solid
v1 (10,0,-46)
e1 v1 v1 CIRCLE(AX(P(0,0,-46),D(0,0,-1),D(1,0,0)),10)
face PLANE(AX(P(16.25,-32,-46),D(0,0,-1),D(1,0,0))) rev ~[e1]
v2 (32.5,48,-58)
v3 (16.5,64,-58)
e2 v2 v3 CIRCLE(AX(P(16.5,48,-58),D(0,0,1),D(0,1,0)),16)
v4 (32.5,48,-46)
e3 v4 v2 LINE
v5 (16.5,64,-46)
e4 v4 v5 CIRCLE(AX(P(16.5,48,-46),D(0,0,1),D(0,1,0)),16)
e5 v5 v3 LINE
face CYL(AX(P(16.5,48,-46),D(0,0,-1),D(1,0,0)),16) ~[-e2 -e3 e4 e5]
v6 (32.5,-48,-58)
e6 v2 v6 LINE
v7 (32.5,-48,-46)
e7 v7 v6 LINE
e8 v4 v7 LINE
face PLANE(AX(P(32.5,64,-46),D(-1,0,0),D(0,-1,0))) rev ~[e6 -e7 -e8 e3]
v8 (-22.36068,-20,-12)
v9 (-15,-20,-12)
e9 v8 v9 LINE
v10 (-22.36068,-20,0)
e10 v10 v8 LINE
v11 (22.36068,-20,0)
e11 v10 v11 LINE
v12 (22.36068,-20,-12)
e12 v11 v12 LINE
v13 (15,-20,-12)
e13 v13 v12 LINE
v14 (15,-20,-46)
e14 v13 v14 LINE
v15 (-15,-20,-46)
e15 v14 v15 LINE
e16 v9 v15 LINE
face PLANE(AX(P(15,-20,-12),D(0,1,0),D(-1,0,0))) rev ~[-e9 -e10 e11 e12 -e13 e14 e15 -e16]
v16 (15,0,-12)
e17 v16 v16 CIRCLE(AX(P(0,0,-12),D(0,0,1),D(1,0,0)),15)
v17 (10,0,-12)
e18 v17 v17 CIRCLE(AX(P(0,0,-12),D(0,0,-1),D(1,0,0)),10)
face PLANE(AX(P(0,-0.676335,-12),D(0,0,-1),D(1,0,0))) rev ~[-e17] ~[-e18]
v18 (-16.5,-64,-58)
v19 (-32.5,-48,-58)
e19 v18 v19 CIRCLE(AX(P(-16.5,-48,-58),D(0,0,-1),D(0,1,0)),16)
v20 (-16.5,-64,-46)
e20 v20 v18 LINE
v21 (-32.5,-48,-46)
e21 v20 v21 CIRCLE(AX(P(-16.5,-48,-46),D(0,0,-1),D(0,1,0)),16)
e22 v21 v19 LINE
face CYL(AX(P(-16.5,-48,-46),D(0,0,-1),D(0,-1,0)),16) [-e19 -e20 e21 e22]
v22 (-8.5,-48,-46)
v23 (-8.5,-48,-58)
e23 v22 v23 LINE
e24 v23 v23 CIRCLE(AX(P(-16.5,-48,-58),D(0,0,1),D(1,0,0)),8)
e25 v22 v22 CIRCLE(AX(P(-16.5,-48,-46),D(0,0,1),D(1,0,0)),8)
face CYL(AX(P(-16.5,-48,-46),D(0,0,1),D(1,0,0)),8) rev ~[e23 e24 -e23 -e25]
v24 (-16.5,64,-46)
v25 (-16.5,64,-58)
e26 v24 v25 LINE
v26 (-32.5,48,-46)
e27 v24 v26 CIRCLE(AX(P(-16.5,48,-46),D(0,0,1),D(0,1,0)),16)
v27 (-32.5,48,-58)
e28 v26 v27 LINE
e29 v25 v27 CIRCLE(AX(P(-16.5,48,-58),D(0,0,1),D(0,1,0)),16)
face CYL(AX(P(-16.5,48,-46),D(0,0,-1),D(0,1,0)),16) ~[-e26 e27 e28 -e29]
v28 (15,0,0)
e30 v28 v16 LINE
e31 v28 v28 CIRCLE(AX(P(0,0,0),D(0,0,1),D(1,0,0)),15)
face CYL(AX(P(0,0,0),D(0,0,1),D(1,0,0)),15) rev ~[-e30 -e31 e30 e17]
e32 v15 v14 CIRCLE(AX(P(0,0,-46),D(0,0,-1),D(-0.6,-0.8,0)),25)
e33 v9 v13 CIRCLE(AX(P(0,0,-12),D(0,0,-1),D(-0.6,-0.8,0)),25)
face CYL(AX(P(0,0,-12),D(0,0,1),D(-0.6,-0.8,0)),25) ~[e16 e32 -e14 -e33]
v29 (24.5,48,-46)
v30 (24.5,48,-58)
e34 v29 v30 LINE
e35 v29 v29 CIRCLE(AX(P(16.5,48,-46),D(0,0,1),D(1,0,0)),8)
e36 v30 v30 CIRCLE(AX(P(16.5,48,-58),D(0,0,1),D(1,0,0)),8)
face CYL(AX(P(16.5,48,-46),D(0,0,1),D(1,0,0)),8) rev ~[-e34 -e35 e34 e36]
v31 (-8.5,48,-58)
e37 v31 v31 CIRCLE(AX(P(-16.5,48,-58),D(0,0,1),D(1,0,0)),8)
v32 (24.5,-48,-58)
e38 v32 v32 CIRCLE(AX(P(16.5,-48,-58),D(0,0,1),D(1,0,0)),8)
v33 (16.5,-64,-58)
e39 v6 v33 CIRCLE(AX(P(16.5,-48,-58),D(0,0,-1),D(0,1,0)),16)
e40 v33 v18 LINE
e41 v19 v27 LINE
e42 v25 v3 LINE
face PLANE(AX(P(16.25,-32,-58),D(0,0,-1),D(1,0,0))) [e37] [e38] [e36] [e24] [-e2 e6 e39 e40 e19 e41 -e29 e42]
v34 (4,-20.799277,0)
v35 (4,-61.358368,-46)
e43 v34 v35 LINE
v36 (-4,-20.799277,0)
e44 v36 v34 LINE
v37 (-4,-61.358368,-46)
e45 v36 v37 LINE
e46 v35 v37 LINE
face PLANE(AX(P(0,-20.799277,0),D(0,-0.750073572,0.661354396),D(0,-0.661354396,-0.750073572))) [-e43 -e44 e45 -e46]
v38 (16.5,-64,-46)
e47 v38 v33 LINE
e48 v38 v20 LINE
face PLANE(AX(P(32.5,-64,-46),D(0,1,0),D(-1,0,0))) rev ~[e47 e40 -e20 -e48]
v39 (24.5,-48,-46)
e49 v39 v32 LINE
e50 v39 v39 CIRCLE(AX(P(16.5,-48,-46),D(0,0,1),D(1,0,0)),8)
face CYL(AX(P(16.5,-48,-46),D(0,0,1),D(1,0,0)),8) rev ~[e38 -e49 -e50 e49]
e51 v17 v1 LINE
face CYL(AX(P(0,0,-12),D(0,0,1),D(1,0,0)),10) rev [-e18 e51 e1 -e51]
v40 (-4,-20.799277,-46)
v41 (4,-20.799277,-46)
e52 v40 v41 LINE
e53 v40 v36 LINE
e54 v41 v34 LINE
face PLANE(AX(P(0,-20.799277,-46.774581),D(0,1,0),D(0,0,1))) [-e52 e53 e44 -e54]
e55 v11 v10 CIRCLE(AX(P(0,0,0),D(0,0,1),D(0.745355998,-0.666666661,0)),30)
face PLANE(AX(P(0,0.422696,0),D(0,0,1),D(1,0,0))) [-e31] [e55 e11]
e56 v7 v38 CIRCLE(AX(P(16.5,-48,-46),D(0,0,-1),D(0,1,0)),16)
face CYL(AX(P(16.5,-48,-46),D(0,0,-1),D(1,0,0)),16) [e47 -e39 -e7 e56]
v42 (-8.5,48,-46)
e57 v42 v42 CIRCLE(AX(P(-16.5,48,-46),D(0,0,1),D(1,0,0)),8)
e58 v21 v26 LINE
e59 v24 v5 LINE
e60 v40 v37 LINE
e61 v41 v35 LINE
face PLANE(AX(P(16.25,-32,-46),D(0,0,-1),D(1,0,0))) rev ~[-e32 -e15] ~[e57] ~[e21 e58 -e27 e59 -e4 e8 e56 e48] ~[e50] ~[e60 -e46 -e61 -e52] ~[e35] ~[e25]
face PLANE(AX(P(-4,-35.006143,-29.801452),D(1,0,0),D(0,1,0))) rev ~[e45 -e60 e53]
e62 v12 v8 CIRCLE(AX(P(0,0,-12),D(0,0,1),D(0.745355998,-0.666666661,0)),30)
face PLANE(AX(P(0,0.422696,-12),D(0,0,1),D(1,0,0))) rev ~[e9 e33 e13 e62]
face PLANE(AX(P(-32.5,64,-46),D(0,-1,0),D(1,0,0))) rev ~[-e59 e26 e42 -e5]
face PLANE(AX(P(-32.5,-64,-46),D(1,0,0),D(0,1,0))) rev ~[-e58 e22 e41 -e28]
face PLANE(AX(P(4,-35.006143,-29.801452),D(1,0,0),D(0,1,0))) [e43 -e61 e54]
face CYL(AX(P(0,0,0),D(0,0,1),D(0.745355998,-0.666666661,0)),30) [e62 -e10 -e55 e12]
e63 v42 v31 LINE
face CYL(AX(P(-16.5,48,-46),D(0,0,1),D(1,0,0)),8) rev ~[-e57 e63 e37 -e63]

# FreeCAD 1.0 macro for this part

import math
import FreeCAD as App
import Part
import Sketcher
Q = App.Units.Quantity


def edges_at(feature, points):
    """Names of the edges that pass closest to the given points."""
    edges = feature.Shape.Edges
    near = lambda p: min(range(len(edges)), key=lambda i: edges[i].distToShape(Part.Vertex(*p))[0])
    return sorted({f"Edge{near(p) + 1}" for p in points})


def add_polygon(sketch, points):
    """Adds a closed chain of lines whose ends are joined by coincident constraints."""
    first, n = sketch.GeometryCount, len(points)
    for a, b in zip(points, points[1:] + points[:1]):
        sketch.addGeometry(Part.LineSegment(App.Vector(*a, 0), App.Vector(*b, 0)), False)
    for i in range(n):
        sketch.addConstraint(Sketcher.Constraint("Coincident", first + i, 2, first + (i + 1) % n, 1))

doc = App.newDocument("Part")
params = doc.addObject("Spreadsheet::Sheet", "Params")
for row, (alias, value) in enumerate([
    ("sketch1_diameter", "30 mm"),
    ("sketch1_radius", "30 mm"),
    ("pad1_length", "12 mm"),
    ("sketch2_diameter", "20 mm"),
    ("sketch2_radius", "25 mm"),
    ("sketch2_width", "30 mm"),
    ("pad2_length", "34 mm"),
    ("sketch3_width", "65 mm"),
    ("sketch3_height", "128 mm"),
    ("pad3_length", "12 mm"),
    ("fillet_radius", "16 mm"),
    ("sketch4_diameter", "16 mm"),
    ("pad4_length", "8 mm"),
], start=1):
    params.set(f"A{row}", alias)
    params.set(f"B{row}", "=" + value)
    params.setAlias(f"B{row}", alias)

body = doc.addObject("PartDesign::Body", "Body")

# Sketch on XY plane
sketch1 = doc.addObject("Sketcher::SketchObject", "Sketch")
body.addObject(sketch1)
sketch1.AttachmentSupport = (doc.XY_Plane, [""])
sketch1.MapMode = "FlatFace"
sketch1.addGeometry(Part.LineSegment(App.Vector(-22, -20, 0), App.Vector(22, -20, 0)), False)
sketch1.addGeometry(Part.ArcOfCircle(Part.Circle(App.Vector(0, 0, 0), App.Vector(0, 0, 1), 30), math.radians(-42), math.radians(222)), False)
sketch1.addGeometry(Part.Circle(App.Vector(0, 0, 0), App.Vector(0, 0, 1), 15), False)
sketch1.addConstraint(Sketcher.Constraint("Coincident", 0, 1, 1, 2))
sketch1.addConstraint(Sketcher.Constraint("Coincident", 1, 1, 0, 2))
sketch1.addConstraint(Sketcher.Constraint("Horizontal", 0))
sketch1.addConstraint(Sketcher.Constraint("Coincident", 1, 3, -1, 1))
sketch1.addConstraint(Sketcher.Constraint("Coincident", 2, 3, -1, 1))
sketch1.addConstraint(Sketcher.Constraint("Diameter", 2, Q("30 mm")))
sketch1.addConstraint(Sketcher.Constraint("Radius", 1, Q("30 mm")))
sketch1.addConstraint(Sketcher.Constraint("DistanceY", 0, 1, -1, 1, Q("20 mm")))
sketch1.setExpression("Constraints[5]", "Params.sketch1_diameter")
sketch1.setExpression("Constraints[6]", "Params.sketch1_radius")
pad1 = doc.addObject("PartDesign::Pad", "Pad")
body.addObject(pad1)
pad1.Profile = sketch1
pad1.setExpression("Length", "Params.pad1_length")
pad1.Reversed = True

# Sketch on XY plane
sketch2 = doc.addObject("Sketcher::SketchObject", "Sketch001")
body.addObject(sketch2)
sketch2.AttachmentSupport = (doc.XY_Plane, [""])
sketch2.MapMode = "FlatFace"
sketch2.AttachmentOffset = App.Placement(App.Vector(0, 0, -12), App.Rotation())
sketch2.addGeometry(Part.LineSegment(App.Vector(15, -20, 0), App.Vector(-15, -20, 0)), False)
sketch2.addGeometry(Part.ArcOfCircle(Part.Circle(App.Vector(0, 0, 0), App.Vector(0, 0, 1), 25), math.radians(-53), math.radians(233)), False)
sketch2.addGeometry(Part.Circle(App.Vector(0, 0, 0), App.Vector(0, 0, 1), 10), False)
sketch2.addConstraint(Sketcher.Constraint("Coincident", 0, 1, 1, 1))
sketch2.addConstraint(Sketcher.Constraint("Coincident", 1, 2, 0, 2))
sketch2.addConstraint(Sketcher.Constraint("Horizontal", 0))
sketch2.addConstraint(Sketcher.Constraint("Coincident", 1, 3, -1, 1))
sketch2.addConstraint(Sketcher.Constraint("Coincident", 2, 3, -1, 1))
sketch2.addConstraint(Sketcher.Constraint("Diameter", 2, Q("20 mm")))
sketch2.addConstraint(Sketcher.Constraint("Radius", 1, Q("25 mm")))
sketch2.addConstraint(Sketcher.Constraint("DistanceX", 0, 2, 0, 1, Q("30 mm")))
sketch2.setExpression("Constraints[5]", "Params.sketch2_diameter")
sketch2.setExpression("Constraints[6]", "Params.sketch2_radius")
sketch2.setExpression("Constraints[7]", "Params.sketch2_width")
pad2 = doc.addObject("PartDesign::Pad", "Pad001")
body.addObject(pad2)
pad2.Profile = sketch2
pad2.setExpression("Length", "Params.pad2_length")
pad2.Reversed = True

# Sketch on XY plane
sketch3 = doc.addObject("Sketcher::SketchObject", "Sketch002")
body.addObject(sketch3)
sketch3.AttachmentSupport = (doc.XY_Plane, [""])
sketch3.MapMode = "FlatFace"
sketch3.AttachmentOffset = App.Placement(App.Vector(0, 0, -46), App.Rotation())
add_polygon(sketch3, [(32, 64), (32, -64), (-32, -64), (-32, 64)])  # lines 0-3
sketch3.addConstraint(Sketcher.Constraint("Vertical", 0))
sketch3.addConstraint(Sketcher.Constraint("Horizontal", 1))
sketch3.addConstraint(Sketcher.Constraint("Vertical", 2))
sketch3.addConstraint(Sketcher.Constraint("Horizontal", 3))
sketch3.addConstraint(Sketcher.Constraint("Symmetric", 0, 2, 2, 2, -1, 1))
sketch3.addConstraint(Sketcher.Constraint("DistanceX", 1, 2, 1, 1, Q("65 mm")))
sketch3.addConstraint(Sketcher.Constraint("DistanceY", 0, 2, 0, 1, Q("128 mm")))
sketch3.setExpression("Constraints[9]", "Params.sketch3_width")
sketch3.setExpression("Constraints[10]", "Params.sketch3_height")
pad3 = doc.addObject("PartDesign::Pad", "Pad002")
body.addObject(pad3)
pad3.Profile = sketch3
pad3.setExpression("Length", "Params.pad3_length")
pad3.Reversed = True
doc.recompute()

fillet = doc.addObject("PartDesign::Fillet", "Fillet")
body.addObject(fillet)
fillet.Base = (pad3, edges_at(pad3, [
    (-32.5, 64, -52),
    (32.5, 64, -52),
    (-32.5, -64, -52),
    (32.5, -64, -52),
]))
fillet.setExpression("Radius", "Params.fillet_radius")

# Sketch on XY plane
sketch4 = doc.addObject("Sketcher::SketchObject", "Sketch003")
body.addObject(sketch4)
sketch4.AttachmentSupport = (doc.XY_Plane, [""])
sketch4.MapMode = "FlatFace"
sketch4.AttachmentOffset = App.Placement(App.Vector(0, 0, -46), App.Rotation())
sketch4.addGeometry(Part.Circle(App.Vector(16, 48, 0), App.Vector(0, 0, 1), 8), False)
sketch4.addGeometry(Part.Circle(App.Vector(-16, 48, 0), App.Vector(0, 0, 1), 8), False)
sketch4.addGeometry(Part.Circle(App.Vector(-16, -48, 0), App.Vector(0, 0, 1), 8), False)
sketch4.addGeometry(Part.Circle(App.Vector(16, -48, 0), App.Vector(0, 0, 1), 8), False)
sketch4.addConstraint(Sketcher.Constraint("Equal", 0, 1))
sketch4.addConstraint(Sketcher.Constraint("Equal", 1, 2))
sketch4.addConstraint(Sketcher.Constraint("Equal", 2, 3))
sketch4.addConstraint(Sketcher.Constraint("Symmetric", 0, 3, 2, 3, -1, 1))
sketch4.addConstraint(Sketcher.Constraint("Symmetric", 1, 3, 3, 3, -1, 1))
sketch4.addConstraint(Sketcher.Constraint("Symmetric", 0, 3, 1, 3, -2))
sketch4.addConstraint(Sketcher.Constraint("Diameter", 0, Q("16 mm")))
sketch4.addConstraint(Sketcher.Constraint("DistanceY", -1, 1, 0, 3, Q("48 mm")))
sketch4.addConstraint(Sketcher.Constraint("DistanceX", 1, 3, 0, 3, Q("33 mm")))
sketch4.setExpression("Constraints[6]", "Params.sketch4_diameter")
pocket1 = doc.addObject("PartDesign::Pocket", "Pocket")
body.addObject(pocket1)
pocket1.Profile = sketch4
pocket1.Type = "ThroughAll"

# Sketch on YZ plane
sketch5 = doc.addObject("Sketcher::SketchObject", "Sketch004")
body.addObject(sketch5)
sketch5.AttachmentSupport = (doc.YZ_Plane, [""])
sketch5.MapMode = "FlatFace"
add_polygon(sketch5, [(-21, -47), (-21, 0), (-62, -47)])  # lines 0-2
sketch5.addConstraint(Sketcher.Constraint("Vertical", 0))
sketch5.addConstraint(Sketcher.Constraint("Horizontal", 2))
sketch5.addConstraint(Sketcher.Constraint("PointOnObject", 0, 2, -1))
sketch5.addConstraint(Sketcher.Constraint("DistanceY", 0, 1, 0, 2, Q("46.774581 mm")))
sketch5.addConstraint(Sketcher.Constraint("Distance", 1, Q("62.359991 mm")))
sketch5.addConstraint(Sketcher.Constraint("DistanceX", 1, 2, -1, 1, Q("62.041331 mm")))
pad4 = doc.addObject("PartDesign::Pad", "Pad003")
body.addObject(pad4)
pad4.Profile = sketch5
pad4.setExpression("Length", "Params.pad4_length")
pad4.Midplane = True

doc.recompute()
